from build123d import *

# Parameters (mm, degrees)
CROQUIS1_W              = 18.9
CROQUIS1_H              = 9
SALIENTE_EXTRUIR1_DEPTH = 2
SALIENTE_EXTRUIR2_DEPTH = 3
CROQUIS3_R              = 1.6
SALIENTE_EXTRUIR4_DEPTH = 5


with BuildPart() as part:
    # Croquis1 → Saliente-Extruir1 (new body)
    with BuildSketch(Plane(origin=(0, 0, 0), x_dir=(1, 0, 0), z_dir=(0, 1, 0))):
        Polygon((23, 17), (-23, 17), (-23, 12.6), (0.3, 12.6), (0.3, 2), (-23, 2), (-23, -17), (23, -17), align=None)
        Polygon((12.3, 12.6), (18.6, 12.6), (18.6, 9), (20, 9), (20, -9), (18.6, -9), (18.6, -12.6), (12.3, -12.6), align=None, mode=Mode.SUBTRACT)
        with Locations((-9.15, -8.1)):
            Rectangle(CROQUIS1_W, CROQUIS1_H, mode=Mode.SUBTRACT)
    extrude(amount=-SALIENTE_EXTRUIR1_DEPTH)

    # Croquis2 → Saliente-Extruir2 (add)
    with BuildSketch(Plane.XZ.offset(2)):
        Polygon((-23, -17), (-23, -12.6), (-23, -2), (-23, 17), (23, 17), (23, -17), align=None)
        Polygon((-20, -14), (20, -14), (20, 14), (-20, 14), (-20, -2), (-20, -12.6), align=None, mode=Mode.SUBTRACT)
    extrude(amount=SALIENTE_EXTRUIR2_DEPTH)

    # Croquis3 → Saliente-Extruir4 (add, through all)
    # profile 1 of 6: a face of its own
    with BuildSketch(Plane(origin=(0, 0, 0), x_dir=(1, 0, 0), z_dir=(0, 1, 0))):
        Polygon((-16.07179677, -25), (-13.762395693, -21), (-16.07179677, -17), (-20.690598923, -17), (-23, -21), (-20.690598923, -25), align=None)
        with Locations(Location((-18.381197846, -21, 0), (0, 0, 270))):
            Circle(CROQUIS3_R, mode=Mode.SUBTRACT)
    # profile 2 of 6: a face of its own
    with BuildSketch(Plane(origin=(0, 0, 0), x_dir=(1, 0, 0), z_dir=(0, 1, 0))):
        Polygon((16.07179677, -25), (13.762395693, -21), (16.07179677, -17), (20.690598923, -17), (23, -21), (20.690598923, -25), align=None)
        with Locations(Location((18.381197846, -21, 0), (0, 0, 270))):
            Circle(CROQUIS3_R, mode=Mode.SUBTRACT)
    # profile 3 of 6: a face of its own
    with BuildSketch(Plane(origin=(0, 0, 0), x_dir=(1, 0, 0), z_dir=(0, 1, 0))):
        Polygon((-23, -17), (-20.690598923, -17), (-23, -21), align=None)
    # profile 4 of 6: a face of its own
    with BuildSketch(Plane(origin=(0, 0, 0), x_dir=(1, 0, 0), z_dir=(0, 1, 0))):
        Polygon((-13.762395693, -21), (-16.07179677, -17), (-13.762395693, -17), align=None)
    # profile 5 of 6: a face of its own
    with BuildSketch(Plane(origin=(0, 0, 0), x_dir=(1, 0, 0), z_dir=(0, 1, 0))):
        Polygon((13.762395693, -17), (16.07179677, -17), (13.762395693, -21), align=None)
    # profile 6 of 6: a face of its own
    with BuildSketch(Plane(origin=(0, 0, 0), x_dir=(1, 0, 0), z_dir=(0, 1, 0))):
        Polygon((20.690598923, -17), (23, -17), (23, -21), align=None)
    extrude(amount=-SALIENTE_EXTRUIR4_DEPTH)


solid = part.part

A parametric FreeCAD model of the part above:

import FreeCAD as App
import Part
import Sketcher
Q = App.Units.Quantity

doc = App.newDocument("Part")
params = doc.addObject("Spreadsheet::Sheet", "Params")
for row, (alias, value) in enumerate([
    ("sketch1_width", "46 mm"),
    ("sketch1_height", "19 mm"),
    ("sketch1_height2", "34 mm"),
    ("sketch1_height3", "9 mm"),
    ("sketch1_height4", "18 mm"),
    ("pad1_length", "2 mm"),
    ("sketch2_width", "46 mm"),
    ("sketch2_width2", "40 mm"),
    ("sketch2_height", "34 mm"),
    ("sketch2_height2", "28 mm"),
    ("pad2_length", "3 mm"),
    ("sketch3_diameter", "3.2 mm"),
    ("sketch3_height", "4 mm"),
    ("pad3_length", "5 mm"),
], start=1):
    params.set(f"A{row}", alias)
    params.set(f"B{row}", "=" + value)
    params.setAlias(f"B{row}", alias)

body = doc.addObject("PartDesign::Body", "Body")

sketch1 = body.newObject("Sketcher::SketchObject", "Sketch")
sketch1.AttachmentSupport = (doc.getObject("XZ_Plane"), [""])
sketch1.MapMode = "FlatFace"
sketch1.addGeometry([
    Part.LineSegment(App.Vector(23, -17, 0), App.Vector(-23, -17, 0)),
    Part.LineSegment(App.Vector(-23, -17, 0), App.Vector(-23, -12.6, 0)),
    Part.LineSegment(App.Vector(-23, -12.6, 0), App.Vector(0.3, -12.6, 0)),
    Part.LineSegment(App.Vector(0.3, -12.6, 0), App.Vector(0.3, -2, 0)),
    Part.LineSegment(App.Vector(0.3, -2, 0), App.Vector(-23, -2, 0)),
    Part.LineSegment(App.Vector(-23, -2, 0), App.Vector(-23, 17, 0)),
    Part.LineSegment(App.Vector(-23, 17, 0), App.Vector(23, 17, 0)),
    Part.LineSegment(App.Vector(23, 17, 0), App.Vector(23, -17, 0)),
    Part.LineSegment(App.Vector(0.3, 12.6, 0), App.Vector(-18.6, 12.6, 0)),
    Part.LineSegment(App.Vector(-18.6, 12.6, 0), App.Vector(-18.6, 3.6, 0)),
    Part.LineSegment(App.Vector(-18.6, 3.6, 0), App.Vector(0.3, 3.6, 0)),
    Part.LineSegment(App.Vector(0.3, 3.6, 0), App.Vector(0.3, 12.6, 0)),
    Part.LineSegment(App.Vector(12.3, 12.6, 0), App.Vector(12.3, -12.6, 0)),
    Part.LineSegment(App.Vector(12.3, -12.6, 0), App.Vector(18.6, -12.6, 0)),
    Part.LineSegment(App.Vector(18.6, -12.6, 0), App.Vector(18.6, -9, 0)),
    Part.LineSegment(App.Vector(18.6, -9, 0), App.Vector(20, -9, 0)),
    Part.LineSegment(App.Vector(20, -9, 0), App.Vector(20, 9, 0)),
    Part.LineSegment(App.Vector(20, 9, 0), App.Vector(18.6, 9, 0)),
    Part.LineSegment(App.Vector(18.6, 9, 0), App.Vector(18.6, 12.6, 0)),
    Part.LineSegment(App.Vector(18.6, 12.6, 0), App.Vector(12.3, 12.6, 0)),
], False)
sketch1.addConstraint([
    Sketcher.Constraint("Coincident", 0, 2, 1, 1),
    Sketcher.Constraint("Coincident", 1, 2, 2, 1),
    Sketcher.Constraint("Coincident", 2, 2, 3, 1),
    Sketcher.Constraint("Coincident", 3, 2, 4, 1),
    Sketcher.Constraint("Coincident", 4, 2, 5, 1),
    Sketcher.Constraint("Coincident", 5, 2, 6, 1),
    Sketcher.Constraint("Coincident", 6, 2, 7, 1),
    Sketcher.Constraint("Coincident", 7, 2, 0, 1),
    Sketcher.Constraint("Coincident", 8, 2, 9, 1),
    Sketcher.Constraint("Coincident", 9, 2, 10, 1),
    Sketcher.Constraint("Coincident", 10, 2, 11, 1),
    Sketcher.Constraint("Coincident", 11, 2, 8, 1),
    Sketcher.Constraint("Coincident", 12, 2, 13, 1),
    Sketcher.Constraint("Coincident", 13, 2, 14, 1),
    Sketcher.Constraint("Coincident", 14, 2, 15, 1),
    Sketcher.Constraint("Coincident", 15, 2, 16, 1),
    Sketcher.Constraint("Coincident", 16, 2, 17, 1),
    Sketcher.Constraint("Coincident", 17, 2, 18, 1),
    Sketcher.Constraint("Coincident", 18, 2, 19, 1),
    Sketcher.Constraint("Coincident", 19, 2, 12, 1),
    Sketcher.Constraint("Horizontal", 0),
    Sketcher.Constraint("Vertical", 1),
    Sketcher.Constraint("Horizontal", 2),
    Sketcher.Constraint("Vertical", 3),
    Sketcher.Constraint("Horizontal", 4),
    Sketcher.Constraint("Vertical", 5),
    Sketcher.Constraint("Horizontal", 6),
    Sketcher.Constraint("Vertical", 7),
    Sketcher.Constraint("Horizontal", 8),
    Sketcher.Constraint("Vertical", 9),
    Sketcher.Constraint("Horizontal", 10),
    Sketcher.Constraint("Vertical", 11),
    Sketcher.Constraint("Vertical", 12),
    Sketcher.Constraint("Horizontal", 13),
    Sketcher.Constraint("Vertical", 14),
    Sketcher.Constraint("Horizontal", 15),
    Sketcher.Constraint("Vertical", 16),
    Sketcher.Constraint("Horizontal", 17),
    Sketcher.Constraint("Vertical", 18),
    Sketcher.Constraint("Horizontal", 19),
    Sketcher.Constraint("Symmetric", 0, 2, 6, 2, -1, 1),
    Sketcher.Constraint("Symmetric", 8, 2, 13, 2, -1, 1),
    Sketcher.Constraint("Symmetric", 8, 2, 18, 2, -2),
    Sketcher.Constraint("Symmetric", 2, 2, 11, 2, -1),
    Sketcher.Constraint("Vertical", 1, 2, 4, 2),
    Sketcher.Constraint("Equal", 14, 18),
    Sketcher.Constraint("DistanceX", 0, 2, 0, 1, 46.0),
    Sketcher.Constraint("DistanceY", 5, 1, 5, 2, 19.0),
    Sketcher.Constraint("DistanceY", 7, 2, 7, 1, 34.0),
    Sketcher.Constraint("DistanceY", 9, 2, 9, 1, 9.0),
    Sketcher.Constraint("DistanceY", 16, 1, 16, 2, 18.0),
    Sketcher.Constraint("DistanceX", 2, 1, 2, 2, 23.3),
    Sketcher.Constraint("DistanceX", 8, 2, 8, 1, 18.9),
    Sketcher.Constraint("DistanceX", 13, 1, 13, 2, 6.3),
    Sketcher.Constraint("DistanceX", 15, 1, 15, 2, 1.4),
    Sketcher.Constraint("DistanceY", 1, 1, 1, 2, 4.4),
])
sketch1.setExpression("Constraints[46]", "Params.sketch1_width")
sketch1.setExpression("Constraints[47]", "Params.sketch1_height")
sketch1.setExpression("Constraints[48]", "Params.sketch1_height2")
sketch1.setExpression("Constraints[49]", "Params.sketch1_height3")
sketch1.setExpression("Constraints[50]", "Params.sketch1_height4")
pad1 = body.newObject("PartDesign::Pad", "Pad")
pad1.Profile = sketch1
pad1.setExpression("Length", "Params.pad1_length")

sketch2 = body.newObject("Sketcher::SketchObject", "Sketch001")
sketch2.AttachmentSupport = (doc.getObject("XZ_Plane"), [""])
sketch2.MapMode = "FlatFace"
sketch2.AttachmentOffset = App.Placement(App.Vector(0, 0, 2), App.Rotation())
sketch2.addGeometry([
    Part.LineSegment(App.Vector(-23, 17, 0), App.Vector(-23, -17, 0)),
    Part.LineSegment(App.Vector(-23, -17, 0), App.Vector(23, -17, 0)),
    Part.LineSegment(App.Vector(23, -17, 0), App.Vector(23, 17, 0)),
    Part.LineSegment(App.Vector(23, 17, 0), App.Vector(-23, 17, 0)),
    Part.LineSegment(App.Vector(-20, -14, 0), App.Vector(-20, 14, 0)),
    Part.LineSegment(App.Vector(-20, 14, 0), App.Vector(20, 14, 0)),
    Part.LineSegment(App.Vector(20, 14, 0), App.Vector(20, -14, 0)),
    Part.LineSegment(App.Vector(20, -14, 0), App.Vector(-20, -14, 0)),
], False)
sketch2.addConstraint([
    Sketcher.Constraint("Coincident", 0, 2, 1, 1),
    Sketcher.Constraint("Coincident", 1, 2, 2, 1),
    Sketcher.Constraint("Coincident", 2, 2, 3, 1),
    Sketcher.Constraint("Coincident", 3, 2, 0, 1),
    Sketcher.Constraint("Coincident", 4, 2, 5, 1),
    Sketcher.Constraint("Coincident", 5, 2, 6, 1),
    Sketcher.Constraint("Coincident", 6, 2, 7, 1),
    Sketcher.Constraint("Coincident", 7, 2, 4, 1),
    Sketcher.Constraint("Vertical", 0),
    Sketcher.Constraint("Horizontal", 1),
    Sketcher.Constraint("Vertical", 2),
    Sketcher.Constraint("Horizontal", 3),
    Sketcher.Constraint("Vertical", 4),
    Sketcher.Constraint("Horizontal", 5),
    Sketcher.Constraint("Vertical", 6),
    Sketcher.Constraint("Horizontal", 7),
    Sketcher.Constraint("Symmetric", 0, 2, 2, 2, -1, 1),
    Sketcher.Constraint("Symmetric", 4, 2, 6, 2, -1, 1),
    Sketcher.Constraint("DistanceX", 1, 1, 1, 2, 46.0),
    Sketcher.Constraint("DistanceX", 5, 1, 5, 2, 40.0),
    Sketcher.Constraint("DistanceY", 0, 2, 0, 1, 34.0),
    Sketcher.Constraint("DistanceY", 4, 1, 4, 2, 28.0),
])
sketch2.setExpression("Constraints[18]", "Params.sketch2_width")
sketch2.setExpression("Constraints[19]", "Params.sketch2_width2")
sketch2.setExpression("Constraints[20]", "Params.sketch2_height")
sketch2.setExpression("Constraints[21]", "Params.sketch2_height2")
pad2 = body.newObject("PartDesign::Pad", "Pad001")
pad2.Profile = sketch2
pad2.setExpression("Length", "Params.pad2_length")

sketch3 = body.newObject("Sketcher::SketchObject", "Sketch002")
sketch3.AttachmentSupport = (doc.getObject("XZ_Plane"), [""])
sketch3.MapMode = "FlatFace"
sketch3.addGeometry([
    Part.LineSegment(App.Vector(-16.1, 25, 0), App.Vector(-13.8, 21, 0)),
    Part.LineSegment(App.Vector(-13.8, 21, 0), App.Vector(-13.8, 17, 0)),
    Part.LineSegment(App.Vector(-13.8, 17, 0), App.Vector(-23, 17, 0)),
    Part.LineSegment(App.Vector(-23, 17, 0), App.Vector(-23, 21, 0)),
    Part.LineSegment(App.Vector(-23, 21, 0), App.Vector(-20.7, 25, 0)),
    Part.LineSegment(App.Vector(-20.7, 25, 0), App.Vector(-16.1, 25, 0)),
    Part.Circle(App.Vector(-18.4, 21, 0), App.Vector(0, 0, 1), 1.6),
    Part.LineSegment(App.Vector(13.8, 21, 0), App.Vector(16.1, 25, 0)),
    Part.LineSegment(App.Vector(16.1, 25, 0), App.Vector(20.7, 25, 0)),
    Part.LineSegment(App.Vector(20.7, 25, 0), App.Vector(23, 21, 0)),
    Part.LineSegment(App.Vector(23, 21, 0), App.Vector(23, 17, 0)),
    Part.LineSegment(App.Vector(23, 17, 0), App.Vector(13.8, 17, 0)),
    Part.LineSegment(App.Vector(13.8, 17, 0), App.Vector(13.8, 21, 0)),
    Part.Circle(App.Vector(18.4, 21, 0), App.Vector(0, 0, 1), 1.6),
], False)
sketch3.addConstraint([
    Sketcher.Constraint("Coincident", 0, 2, 1, 1),
    Sketcher.Constraint("Coincident", 1, 2, 2, 1),
    Sketcher.Constraint("Coincident", 2, 2, 3, 1),
    Sketcher.Constraint("Coincident", 3, 2, 4, 1),
    Sketcher.Constraint("Coincident", 4, 2, 5, 1),
    Sketcher.Constraint("Coincident", 5, 2, 0, 1),
    Sketcher.Constraint("Coincident", 7, 2, 8, 1),
    Sketcher.Constraint("Coincident", 8, 2, 9, 1),
    Sketcher.Constraint("Coincident", 9, 2, 10, 1),
    Sketcher.Constraint("Coincident", 10, 2, 11, 1),
    Sketcher.Constraint("Coincident", 11, 2, 12, 1),
    Sketcher.Constraint("Coincident", 12, 2, 7, 1),
    Sketcher.Constraint("Vertical", 1),
    Sketcher.Constraint("Horizontal", 2),
    Sketcher.Constraint("Vertical", 3),
    Sketcher.Constraint("Horizontal", 5),
    Sketcher.Constraint("Horizontal", 8),
    Sketcher.Constraint("Vertical", 10),
    Sketcher.Constraint("Horizontal", 11),
    Sketcher.Constraint("Vertical", 12),
    Sketcher.Constraint("Equal", 6, 13),
    Sketcher.Constraint("Symmetric", 6, 3, 13, 3, -2),
    Sketcher.Constraint("Symmetric", 5, 2, 7, 2, -2),
    Sketcher.Constraint("Symmetric", 3, 2, 9, 2, -2),
    Sketcher.Constraint("Symmetric", 1, 2, 11, 2, -2),
    Sketcher.Constraint("Parallel", 4, 7),
    Sketcher.Constraint("Parallel", 0, 9),
    Sketcher.Constraint("Horizontal", 13, 3, 0, 2),
    Sketcher.Constraint("Horizontal", 0, 2, 3, 2),
    Sketcher.Constraint("Horizontal", 9, 2, 12, 2),
    Sketcher.Constraint("Diameter", 6, 3.2),
    Sketcher.Constraint("DistanceY", 1, 2, 1, 1, 4.0),
    Sketcher.Constraint("Angle", 0, Q("-60 deg")),
    Sketcher.Constraint("DistanceY", -1, 1, 6, 3, 21.0),
    Sketcher.Constraint("DistanceX", 2, 2, -1, 1, 23.0),
    Sketcher.Constraint("DistanceY", -1, 1, 4, 2, 25.0),
    Sketcher.Constraint("DistanceX", 4, 2, 6, 3, 2.309401),
    Sketcher.Constraint("DistanceX", 6, 3, 5, 2, 2.309401),
])
sketch3.setExpression("Constraints[30]", "Params.sketch3_diameter")
sketch3.setExpression("Constraints[31]", "Params.sketch3_height")
pad3 = body.newObject("PartDesign::Pad", "Pad002")
pad3.Profile = sketch3
pad3.setExpression("Length", "Params.pad3_length")

doc.recompute()
